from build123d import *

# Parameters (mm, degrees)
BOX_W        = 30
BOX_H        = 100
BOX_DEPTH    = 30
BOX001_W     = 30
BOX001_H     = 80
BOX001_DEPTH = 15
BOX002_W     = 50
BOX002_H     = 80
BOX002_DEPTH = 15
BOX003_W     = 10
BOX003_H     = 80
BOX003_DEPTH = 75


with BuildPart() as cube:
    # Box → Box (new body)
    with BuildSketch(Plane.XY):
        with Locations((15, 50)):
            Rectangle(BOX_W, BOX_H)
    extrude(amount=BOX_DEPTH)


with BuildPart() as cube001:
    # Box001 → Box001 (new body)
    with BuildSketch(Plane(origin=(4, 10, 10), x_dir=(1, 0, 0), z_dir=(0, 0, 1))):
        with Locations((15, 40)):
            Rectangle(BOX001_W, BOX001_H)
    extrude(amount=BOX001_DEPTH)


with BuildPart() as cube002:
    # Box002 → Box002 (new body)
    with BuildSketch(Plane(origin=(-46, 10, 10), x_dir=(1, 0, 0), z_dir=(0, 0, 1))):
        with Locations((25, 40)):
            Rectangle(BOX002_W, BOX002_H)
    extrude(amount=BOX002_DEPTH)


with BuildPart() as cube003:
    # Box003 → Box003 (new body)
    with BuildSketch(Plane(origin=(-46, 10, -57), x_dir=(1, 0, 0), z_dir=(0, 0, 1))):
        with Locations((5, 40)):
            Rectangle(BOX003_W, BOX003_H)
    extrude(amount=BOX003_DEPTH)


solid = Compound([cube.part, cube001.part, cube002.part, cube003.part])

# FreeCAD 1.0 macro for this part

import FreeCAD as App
import Part
import Sketcher
from FreeCAD import Vector


def add_polygon(sketch, points):
    """Adds a closed chain of lines whose ends are joined by coincident constraints."""
    first, n = sketch.GeometryCount, len(points)
    for a, b in zip(points, points[1:] + points[:1]):
        sketch.addGeometry(Part.LineSegment(App.Vector(*a, 0), App.Vector(*b, 0)), False)
    for i in range(n):
        sketch.addConstraint(Sketcher.Constraint("Coincident", first + i, 2, first + (i + 1) % n, 1))

doc = App.newDocument("Part")
params = doc.addObject("Spreadsheet::Sheet", "Params")
for row, (alias, value) in enumerate([
    ("sketch1_width", "30 mm"),
    ("sketch1_height", "100 mm"),
    ("pad1_length", "30 mm"),
    ("sketch2_width", "30 mm"),
    ("sketch2_height", "80 mm"),
    ("pad2_length", "15 mm"),
    ("sketch3_width", "50 mm"),
    ("sketch3_height", "80 mm"),
    ("pad3_length", "15 mm"),
    ("sketch4_width", "10 mm"),
    ("sketch4_height", "80 mm"),
    ("pad4_length", "75 mm"),
], start=1):
    params.set(f"A{row}", alias)
    params.set(f"B{row}", "=" + value)
    params.setAlias(f"B{row}", alias)

body = doc.addObject("PartDesign::Body", "Body")

sketch1 = doc.addObject("Sketcher::SketchObject", "Sketch")
body.addObject(sketch1)
sketch1.AttachmentSupport = (doc.XY_Plane, [""])
sketch1.MapMode = "FlatFace"
add_polygon(sketch1, [(0, 100), (0, 0), (30, 0), (30, 100)])
sketch1.addConstraint(Sketcher.Constraint("Vertical", 0))
sketch1.addConstraint(Sketcher.Constraint("Horizontal", 1))
sketch1.addConstraint(Sketcher.Constraint("Vertical", 2))
sketch1.addConstraint(Sketcher.Constraint("Horizontal", 3))
sketch1.addConstraint(Sketcher.Constraint("Coincident", 0, 2, -1, 1))
sketch1.addConstraint(Sketcher.Constraint("DistanceX", 1, 1, 1, 2, 30.0))
sketch1.addConstraint(Sketcher.Constraint("DistanceY", 0, 2, 0, 1, 100.0))
sketch1.setExpression("Constraints[9]", "Params.sketch1_width")
sketch1.setExpression("Constraints[10]", "Params.sketch1_height")
pad1 = doc.addObject("PartDesign::Pad", "Pad")
body.addObject(pad1)
pad1.Profile = sketch1
pad1.setExpression("Length", "Params.pad1_length")
body2 = doc.addObject("PartDesign::Body", "Body001")

sketch2 = doc.addObject("Sketcher::SketchObject", "Sketch001")
body2.addObject(sketch2)
sketch2.AttachmentSupport = (doc.getObject("XY_Plane001"), [""])
sketch2.MapMode = "FlatFace"
sketch2.AttachmentOffset = App.Placement(Vector(0, 0, 10), App.Rotation())
add_polygon(sketch2, [(4, 90), (4, 10), (34, 10), (34, 90)])
sketch2.addConstraint(Sketcher.Constraint("Vertical", 0))
sketch2.addConstraint(Sketcher.Constraint("Horizontal", 1))
sketch2.addConstraint(Sketcher.Constraint("Vertical", 2))
sketch2.addConstraint(Sketcher.Constraint("Horizontal", 3))
sketch2.addConstraint(Sketcher.Constraint("DistanceX", 1, 1, 1, 2, 30.0))
sketch2.addConstraint(Sketcher.Constraint("DistanceY", 0, 2, 0, 1, 80.0))
sketch2.addConstraint(Sketcher.Constraint("DistanceX", -1, 1, 0, 2, 4.0))
sketch2.addConstraint(Sketcher.Constraint("DistanceY", -1, 1, 0, 2, 10.0))
sketch2.setExpression("Constraints[8]", "Params.sketch2_width")
sketch2.setExpression("Constraints[9]", "Params.sketch2_height")
pad2 = doc.addObject("PartDesign::Pad", "Pad001")
body2.addObject(pad2)
pad2.Profile = sketch2
pad2.setExpression("Length", "Params.pad2_length")
body3 = doc.addObject("PartDesign::Body", "Body002")

sketch3 = doc.addObject("Sketcher::SketchObject", "Sketch002")
body3.addObject(sketch3)
sketch3.AttachmentSupport = (doc.getObject("XY_Plane002"), [""])
sketch3.MapMode = "FlatFace"
sketch3.AttachmentOffset = App.Placement(Vector(0, 0, 10), App.Rotation())
add_polygon(sketch3, [(-46, 90), (-46, 10), (4, 10), (4, 90)])
sketch3.addConstraint(Sketcher.Constraint("Vertical", 0))
sketch3.addConstraint(Sketcher.Constraint("Horizontal", 1))
sketch3.addConstraint(Sketcher.Constraint("Vertical", 2))
sketch3.addConstraint(Sketcher.Constraint("Horizontal", 3))
sketch3.addConstraint(Sketcher.Constraint("DistanceX", 1, 1, 1, 2, 50.0))
sketch3.addConstraint(Sketcher.Constraint("DistanceY", 0, 2, 0, 1, 80.0))
sketch3.addConstraint(Sketcher.Constraint("DistanceX", 0, 2, -1, 1, 46.0))
sketch3.addConstraint(Sketcher.Constraint("DistanceY", -1, 1, 0, 2, 10.0))
sketch3.setExpression("Constraints[8]", "Params.sketch3_width")
sketch3.setExpression("Constraints[9]", "Params.sketch3_height")
pad3 = doc.addObject("PartDesign::Pad", "Pad002")
body3.addObject(pad3)
pad3.Profile = sketch3
pad3.setExpression("Length", "Params.pad3_length")
body4 = doc.addObject("PartDesign::Body", "Body003")

sketch4 = doc.addObject("Sketcher::SketchObject", "Sketch003")
body4.addObject(sketch4)
sketch4.AttachmentSupport = (doc.getObject("XY_Plane003"), [""])
sketch4.MapMode = "FlatFace"
sketch4.AttachmentOffset = App.Placement(Vector(0, 0, -57), App.Rotation())
add_polygon(sketch4, [(-46, 90), (-46, 10), (-36, 10), (-36, 90)])
sketch4.addConstraint(Sketcher.Constraint("Vertical", 0))
sketch4.addConstraint(Sketcher.Constraint("Horizontal", 1))
sketch4.addConstraint(Sketcher.Constraint("Vertical", 2))
sketch4.addConstraint(Sketcher.Constraint("Horizontal", 3))
sketch4.addConstraint(Sketcher.Constraint("DistanceX", 1, 1, 1, 2, 10.0))
sketch4.addConstraint(Sketcher.Constraint("DistanceY", 0, 2, 0, 1, 80.0))
sketch4.addConstraint(Sketcher.Constraint("DistanceX", 0, 2, -1, 1, 46.0))
sketch4.addConstraint(Sketcher.Constraint("DistanceY", -1, 1, 0, 2, 10.0))
sketch4.setExpression("Constraints[8]", "Params.sketch4_width")
sketch4.setExpression("Constraints[9]", "Params.sketch4_height")
pad4 = doc.addObject("PartDesign::Pad", "Pad003")
body4.addObject(pad4)
pad4.Profile = sketch4
pad4.setExpression("Length", "Params.pad4_length")

doc.recompute()
